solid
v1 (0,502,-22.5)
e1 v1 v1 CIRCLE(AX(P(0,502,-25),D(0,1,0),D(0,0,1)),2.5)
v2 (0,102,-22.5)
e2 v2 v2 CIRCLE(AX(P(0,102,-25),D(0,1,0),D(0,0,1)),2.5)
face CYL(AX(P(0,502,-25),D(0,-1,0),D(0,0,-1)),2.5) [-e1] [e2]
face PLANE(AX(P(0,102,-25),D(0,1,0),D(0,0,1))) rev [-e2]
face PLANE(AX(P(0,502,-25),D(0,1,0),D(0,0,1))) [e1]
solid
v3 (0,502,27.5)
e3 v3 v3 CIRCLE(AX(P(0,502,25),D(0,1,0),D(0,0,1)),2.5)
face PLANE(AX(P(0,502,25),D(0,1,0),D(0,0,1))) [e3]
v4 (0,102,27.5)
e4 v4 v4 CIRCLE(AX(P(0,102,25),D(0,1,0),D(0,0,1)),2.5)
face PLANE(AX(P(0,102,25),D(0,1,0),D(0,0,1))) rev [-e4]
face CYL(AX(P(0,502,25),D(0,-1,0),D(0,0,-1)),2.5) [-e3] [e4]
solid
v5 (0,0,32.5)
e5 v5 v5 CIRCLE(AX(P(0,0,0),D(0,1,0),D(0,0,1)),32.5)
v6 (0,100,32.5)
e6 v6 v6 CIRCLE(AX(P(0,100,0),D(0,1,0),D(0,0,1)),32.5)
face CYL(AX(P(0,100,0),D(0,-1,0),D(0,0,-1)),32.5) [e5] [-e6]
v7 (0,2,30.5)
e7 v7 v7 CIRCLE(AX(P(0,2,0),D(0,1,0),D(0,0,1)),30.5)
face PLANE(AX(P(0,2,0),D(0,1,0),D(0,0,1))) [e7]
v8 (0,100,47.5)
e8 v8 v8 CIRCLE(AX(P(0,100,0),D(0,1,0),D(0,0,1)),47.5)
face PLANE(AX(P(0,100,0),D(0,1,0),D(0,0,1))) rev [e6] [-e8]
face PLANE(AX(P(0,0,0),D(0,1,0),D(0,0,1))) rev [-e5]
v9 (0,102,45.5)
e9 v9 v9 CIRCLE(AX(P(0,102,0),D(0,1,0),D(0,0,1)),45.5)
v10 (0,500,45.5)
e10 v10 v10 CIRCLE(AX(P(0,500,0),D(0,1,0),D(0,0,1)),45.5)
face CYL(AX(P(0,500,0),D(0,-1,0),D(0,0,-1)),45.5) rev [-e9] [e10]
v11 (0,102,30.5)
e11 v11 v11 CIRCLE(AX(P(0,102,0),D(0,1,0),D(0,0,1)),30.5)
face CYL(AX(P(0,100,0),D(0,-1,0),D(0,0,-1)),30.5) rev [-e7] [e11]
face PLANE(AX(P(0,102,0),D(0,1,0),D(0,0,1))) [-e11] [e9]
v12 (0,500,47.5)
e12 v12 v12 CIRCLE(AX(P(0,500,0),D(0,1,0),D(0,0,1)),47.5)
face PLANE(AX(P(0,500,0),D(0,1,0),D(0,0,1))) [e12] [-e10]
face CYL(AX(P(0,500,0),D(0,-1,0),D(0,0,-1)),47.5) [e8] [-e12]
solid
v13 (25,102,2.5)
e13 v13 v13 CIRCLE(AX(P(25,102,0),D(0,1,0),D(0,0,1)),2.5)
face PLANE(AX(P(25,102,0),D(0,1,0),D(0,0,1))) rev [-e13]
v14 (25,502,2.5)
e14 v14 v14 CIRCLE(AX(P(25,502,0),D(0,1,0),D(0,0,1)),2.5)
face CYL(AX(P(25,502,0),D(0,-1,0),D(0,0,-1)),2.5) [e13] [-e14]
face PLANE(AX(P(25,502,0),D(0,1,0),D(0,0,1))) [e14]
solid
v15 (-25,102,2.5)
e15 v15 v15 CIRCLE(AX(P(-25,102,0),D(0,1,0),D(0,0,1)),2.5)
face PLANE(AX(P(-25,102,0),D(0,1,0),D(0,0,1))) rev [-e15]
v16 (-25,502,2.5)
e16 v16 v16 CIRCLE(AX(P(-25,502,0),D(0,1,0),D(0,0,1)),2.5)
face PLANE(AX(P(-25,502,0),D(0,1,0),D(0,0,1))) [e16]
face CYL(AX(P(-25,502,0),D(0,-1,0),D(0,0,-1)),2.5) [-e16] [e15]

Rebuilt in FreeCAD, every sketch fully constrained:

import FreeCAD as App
import Part
import Sketcher
from FreeCAD import Vector
Q = App.Units.Quantity


def faces_at(feature, points):
    """Names of the faces that lie closest to the given points."""
    faces = feature.Shape.Faces
    near = lambda p: min(range(len(faces)), key=lambda i: faces[i].distToShape(Part.Vertex(*p))[0])
    return sorted({f"Face{near(p) + 1}" for p in points})

doc = App.newDocument("Part")
body = doc.addObject("PartDesign::Body", "Body")

# Sketch on XZ plane
sketch1 = body.newObject("Sketcher::SketchObject", "Sketch")
sketch1.AttachmentSupport = (doc.getObject("XZ_Plane"), [""])
sketch1.MapMode = "FlatFace"
sketch1.addGeometry(Part.Circle(Vector(0, 0, 0), Vector(0, 0, 1), 32), False)
sketch1.addConstraint([
    Sketcher.Constraint("Coincident", 0, 3, -1, 1),
    Sketcher.Constraint("Diameter", 0, Q("65 mm")),
])
pad1 = body.newObject("PartDesign::Pad", "Pad")
pad1.Profile = sketch1
pad1.Length = 100
pad1.Reversed = True

# Sketch on XZ plane
sketch2 = body.newObject("Sketcher::SketchObject", "Sketch001")
sketch2.AttachmentSupport = (doc.getObject("XZ_Plane"), [""])
sketch2.MapMode = "FlatFace"
sketch2.AttachmentOffset = App.Placement(Vector(0, 0, -100), App.Rotation())
sketch2.addGeometry(Part.Circle(Vector(0, 0, 0), Vector(0, 0, 1), 48), False)
sketch2.addConstraint([
    Sketcher.Constraint("Coincident", 0, 3, -1, 1),
    Sketcher.Constraint("Diameter", 0, Q("95 mm")),
])
pad2 = body.newObject("PartDesign::Pad", "Pad001")
pad2.Profile = sketch2
pad2.Length = 400
pad2.Reversed = True
doc.recompute()

thickness = body.newObject("PartDesign::Thickness", "Thickness")
thickness.Base = (pad2, faces_at(pad2, [(0, 500, 0)]))
thickness.Value = 2
thickness.Reversed = True
thickness.Join = "Intersection"
body2 = doc.addObject("PartDesign::Body", "Body001")

# Sketch on XZ plane
sketch3 = body2.newObject("Sketcher::SketchObject", "Sketch002")
sketch3.AttachmentSupport = (doc.getObject("XZ_Plane001"), [""])
sketch3.MapMode = "FlatFace"
sketch3.AttachmentOffset = App.Placement(Vector(0, 0, -102), App.Rotation())
sketch3.addGeometry(Part.Circle(Vector(-25, 0, 0), Vector(0, 0, 1), 2.5), False)
sketch3.addConstraint([
    Sketcher.Constraint("PointOnObject", 0, 3, -1),
    Sketcher.Constraint("Diameter", 0, Q("5 mm")),
    Sketcher.Constraint("DistanceX", 0, 3, -1, 1, Q("25 mm")),
])
pad3 = body2.newObject("PartDesign::Pad", "Pad002")
pad3.Profile = sketch3
pad3.Length = 400
pad3.Reversed = True
body3 = doc.addObject("PartDesign::Body", "Body002")

# Sketch on XZ plane
sketch4 = body3.newObject("Sketcher::SketchObject", "Sketch003")
sketch4.AttachmentSupport = (doc.getObject("XZ_Plane002"), [""])
sketch4.MapMode = "FlatFace"
sketch4.AttachmentOffset = App.Placement(Vector(0, 0, -102), App.Rotation())
sketch4.addGeometry(Part.Circle(Vector(0, -25, 0), Vector(0, 0, 1), 2.5), False)
sketch4.addConstraint([
    Sketcher.Constraint("PointOnObject", 0, 3, -2),
    Sketcher.Constraint("Diameter", 0, Q("5 mm")),
    Sketcher.Constraint("DistanceY", 0, 3, -1, 1, Q("25 mm")),
])
pad4 = body3.newObject("PartDesign::Pad", "Pad003")
pad4.Profile = sketch4
pad4.Length = 400
pad4.Reversed = True
body4 = doc.addObject("PartDesign::Body", "Body003")

# Sketch on XZ plane
sketch5 = body4.newObject("Sketcher::SketchObject", "Sketch004")
sketch5.AttachmentSupport = (doc.getObject("XZ_Plane003"), [""])
sketch5.MapMode = "FlatFace"
sketch5.AttachmentOffset = App.Placement(Vector(0, 0, -102), App.Rotation())
sketch5.addGeometry(Part.Circle(Vector(25, 0, 0), Vector(0, 0, 1), 2.5), False)
sketch5.addConstraint([
    Sketcher.Constraint("PointOnObject", 0, 3, -1),
    Sketcher.Constraint("Diameter", 0, Q("5 mm")),
    Sketcher.Constraint("DistanceX", -1, 1, 0, 3, Q("25 mm")),
])
pad5 = body4.newObject("PartDesign::Pad", "Pad004")
pad5.Profile = sketch5
pad5.Length = 400
pad5.Reversed = True
body5 = doc.addObject("PartDesign::Body", "Body004")

# Sketch on XZ plane
sketch6 = body5.newObject("Sketcher::SketchObject", "Sketch005")
sketch6.AttachmentSupport = (doc.getObject("XZ_Plane004"), [""])
sketch6.MapMode = "FlatFace"
sketch6.AttachmentOffset = App.Placement(Vector(0, 0, -102), App.Rotation())
sketch6.addGeometry(Part.Circle(Vector(0, 25, 0), Vector(0, 0, 1), 2.5), False)
sketch6.addConstraint([
    Sketcher.Constraint("PointOnObject", 0, 3, -2),
    Sketcher.Constraint("Diameter", 0, Q("5 mm")),
    Sketcher.Constraint("DistanceY", -1, 1, 0, 3, Q("25 mm")),
])
pad6 = body5.newObject("PartDesign::Pad", "Pad005")
pad6.Profile = sketch6
pad6.Length = 400
pad6.Reversed = True

doc.recompute()
